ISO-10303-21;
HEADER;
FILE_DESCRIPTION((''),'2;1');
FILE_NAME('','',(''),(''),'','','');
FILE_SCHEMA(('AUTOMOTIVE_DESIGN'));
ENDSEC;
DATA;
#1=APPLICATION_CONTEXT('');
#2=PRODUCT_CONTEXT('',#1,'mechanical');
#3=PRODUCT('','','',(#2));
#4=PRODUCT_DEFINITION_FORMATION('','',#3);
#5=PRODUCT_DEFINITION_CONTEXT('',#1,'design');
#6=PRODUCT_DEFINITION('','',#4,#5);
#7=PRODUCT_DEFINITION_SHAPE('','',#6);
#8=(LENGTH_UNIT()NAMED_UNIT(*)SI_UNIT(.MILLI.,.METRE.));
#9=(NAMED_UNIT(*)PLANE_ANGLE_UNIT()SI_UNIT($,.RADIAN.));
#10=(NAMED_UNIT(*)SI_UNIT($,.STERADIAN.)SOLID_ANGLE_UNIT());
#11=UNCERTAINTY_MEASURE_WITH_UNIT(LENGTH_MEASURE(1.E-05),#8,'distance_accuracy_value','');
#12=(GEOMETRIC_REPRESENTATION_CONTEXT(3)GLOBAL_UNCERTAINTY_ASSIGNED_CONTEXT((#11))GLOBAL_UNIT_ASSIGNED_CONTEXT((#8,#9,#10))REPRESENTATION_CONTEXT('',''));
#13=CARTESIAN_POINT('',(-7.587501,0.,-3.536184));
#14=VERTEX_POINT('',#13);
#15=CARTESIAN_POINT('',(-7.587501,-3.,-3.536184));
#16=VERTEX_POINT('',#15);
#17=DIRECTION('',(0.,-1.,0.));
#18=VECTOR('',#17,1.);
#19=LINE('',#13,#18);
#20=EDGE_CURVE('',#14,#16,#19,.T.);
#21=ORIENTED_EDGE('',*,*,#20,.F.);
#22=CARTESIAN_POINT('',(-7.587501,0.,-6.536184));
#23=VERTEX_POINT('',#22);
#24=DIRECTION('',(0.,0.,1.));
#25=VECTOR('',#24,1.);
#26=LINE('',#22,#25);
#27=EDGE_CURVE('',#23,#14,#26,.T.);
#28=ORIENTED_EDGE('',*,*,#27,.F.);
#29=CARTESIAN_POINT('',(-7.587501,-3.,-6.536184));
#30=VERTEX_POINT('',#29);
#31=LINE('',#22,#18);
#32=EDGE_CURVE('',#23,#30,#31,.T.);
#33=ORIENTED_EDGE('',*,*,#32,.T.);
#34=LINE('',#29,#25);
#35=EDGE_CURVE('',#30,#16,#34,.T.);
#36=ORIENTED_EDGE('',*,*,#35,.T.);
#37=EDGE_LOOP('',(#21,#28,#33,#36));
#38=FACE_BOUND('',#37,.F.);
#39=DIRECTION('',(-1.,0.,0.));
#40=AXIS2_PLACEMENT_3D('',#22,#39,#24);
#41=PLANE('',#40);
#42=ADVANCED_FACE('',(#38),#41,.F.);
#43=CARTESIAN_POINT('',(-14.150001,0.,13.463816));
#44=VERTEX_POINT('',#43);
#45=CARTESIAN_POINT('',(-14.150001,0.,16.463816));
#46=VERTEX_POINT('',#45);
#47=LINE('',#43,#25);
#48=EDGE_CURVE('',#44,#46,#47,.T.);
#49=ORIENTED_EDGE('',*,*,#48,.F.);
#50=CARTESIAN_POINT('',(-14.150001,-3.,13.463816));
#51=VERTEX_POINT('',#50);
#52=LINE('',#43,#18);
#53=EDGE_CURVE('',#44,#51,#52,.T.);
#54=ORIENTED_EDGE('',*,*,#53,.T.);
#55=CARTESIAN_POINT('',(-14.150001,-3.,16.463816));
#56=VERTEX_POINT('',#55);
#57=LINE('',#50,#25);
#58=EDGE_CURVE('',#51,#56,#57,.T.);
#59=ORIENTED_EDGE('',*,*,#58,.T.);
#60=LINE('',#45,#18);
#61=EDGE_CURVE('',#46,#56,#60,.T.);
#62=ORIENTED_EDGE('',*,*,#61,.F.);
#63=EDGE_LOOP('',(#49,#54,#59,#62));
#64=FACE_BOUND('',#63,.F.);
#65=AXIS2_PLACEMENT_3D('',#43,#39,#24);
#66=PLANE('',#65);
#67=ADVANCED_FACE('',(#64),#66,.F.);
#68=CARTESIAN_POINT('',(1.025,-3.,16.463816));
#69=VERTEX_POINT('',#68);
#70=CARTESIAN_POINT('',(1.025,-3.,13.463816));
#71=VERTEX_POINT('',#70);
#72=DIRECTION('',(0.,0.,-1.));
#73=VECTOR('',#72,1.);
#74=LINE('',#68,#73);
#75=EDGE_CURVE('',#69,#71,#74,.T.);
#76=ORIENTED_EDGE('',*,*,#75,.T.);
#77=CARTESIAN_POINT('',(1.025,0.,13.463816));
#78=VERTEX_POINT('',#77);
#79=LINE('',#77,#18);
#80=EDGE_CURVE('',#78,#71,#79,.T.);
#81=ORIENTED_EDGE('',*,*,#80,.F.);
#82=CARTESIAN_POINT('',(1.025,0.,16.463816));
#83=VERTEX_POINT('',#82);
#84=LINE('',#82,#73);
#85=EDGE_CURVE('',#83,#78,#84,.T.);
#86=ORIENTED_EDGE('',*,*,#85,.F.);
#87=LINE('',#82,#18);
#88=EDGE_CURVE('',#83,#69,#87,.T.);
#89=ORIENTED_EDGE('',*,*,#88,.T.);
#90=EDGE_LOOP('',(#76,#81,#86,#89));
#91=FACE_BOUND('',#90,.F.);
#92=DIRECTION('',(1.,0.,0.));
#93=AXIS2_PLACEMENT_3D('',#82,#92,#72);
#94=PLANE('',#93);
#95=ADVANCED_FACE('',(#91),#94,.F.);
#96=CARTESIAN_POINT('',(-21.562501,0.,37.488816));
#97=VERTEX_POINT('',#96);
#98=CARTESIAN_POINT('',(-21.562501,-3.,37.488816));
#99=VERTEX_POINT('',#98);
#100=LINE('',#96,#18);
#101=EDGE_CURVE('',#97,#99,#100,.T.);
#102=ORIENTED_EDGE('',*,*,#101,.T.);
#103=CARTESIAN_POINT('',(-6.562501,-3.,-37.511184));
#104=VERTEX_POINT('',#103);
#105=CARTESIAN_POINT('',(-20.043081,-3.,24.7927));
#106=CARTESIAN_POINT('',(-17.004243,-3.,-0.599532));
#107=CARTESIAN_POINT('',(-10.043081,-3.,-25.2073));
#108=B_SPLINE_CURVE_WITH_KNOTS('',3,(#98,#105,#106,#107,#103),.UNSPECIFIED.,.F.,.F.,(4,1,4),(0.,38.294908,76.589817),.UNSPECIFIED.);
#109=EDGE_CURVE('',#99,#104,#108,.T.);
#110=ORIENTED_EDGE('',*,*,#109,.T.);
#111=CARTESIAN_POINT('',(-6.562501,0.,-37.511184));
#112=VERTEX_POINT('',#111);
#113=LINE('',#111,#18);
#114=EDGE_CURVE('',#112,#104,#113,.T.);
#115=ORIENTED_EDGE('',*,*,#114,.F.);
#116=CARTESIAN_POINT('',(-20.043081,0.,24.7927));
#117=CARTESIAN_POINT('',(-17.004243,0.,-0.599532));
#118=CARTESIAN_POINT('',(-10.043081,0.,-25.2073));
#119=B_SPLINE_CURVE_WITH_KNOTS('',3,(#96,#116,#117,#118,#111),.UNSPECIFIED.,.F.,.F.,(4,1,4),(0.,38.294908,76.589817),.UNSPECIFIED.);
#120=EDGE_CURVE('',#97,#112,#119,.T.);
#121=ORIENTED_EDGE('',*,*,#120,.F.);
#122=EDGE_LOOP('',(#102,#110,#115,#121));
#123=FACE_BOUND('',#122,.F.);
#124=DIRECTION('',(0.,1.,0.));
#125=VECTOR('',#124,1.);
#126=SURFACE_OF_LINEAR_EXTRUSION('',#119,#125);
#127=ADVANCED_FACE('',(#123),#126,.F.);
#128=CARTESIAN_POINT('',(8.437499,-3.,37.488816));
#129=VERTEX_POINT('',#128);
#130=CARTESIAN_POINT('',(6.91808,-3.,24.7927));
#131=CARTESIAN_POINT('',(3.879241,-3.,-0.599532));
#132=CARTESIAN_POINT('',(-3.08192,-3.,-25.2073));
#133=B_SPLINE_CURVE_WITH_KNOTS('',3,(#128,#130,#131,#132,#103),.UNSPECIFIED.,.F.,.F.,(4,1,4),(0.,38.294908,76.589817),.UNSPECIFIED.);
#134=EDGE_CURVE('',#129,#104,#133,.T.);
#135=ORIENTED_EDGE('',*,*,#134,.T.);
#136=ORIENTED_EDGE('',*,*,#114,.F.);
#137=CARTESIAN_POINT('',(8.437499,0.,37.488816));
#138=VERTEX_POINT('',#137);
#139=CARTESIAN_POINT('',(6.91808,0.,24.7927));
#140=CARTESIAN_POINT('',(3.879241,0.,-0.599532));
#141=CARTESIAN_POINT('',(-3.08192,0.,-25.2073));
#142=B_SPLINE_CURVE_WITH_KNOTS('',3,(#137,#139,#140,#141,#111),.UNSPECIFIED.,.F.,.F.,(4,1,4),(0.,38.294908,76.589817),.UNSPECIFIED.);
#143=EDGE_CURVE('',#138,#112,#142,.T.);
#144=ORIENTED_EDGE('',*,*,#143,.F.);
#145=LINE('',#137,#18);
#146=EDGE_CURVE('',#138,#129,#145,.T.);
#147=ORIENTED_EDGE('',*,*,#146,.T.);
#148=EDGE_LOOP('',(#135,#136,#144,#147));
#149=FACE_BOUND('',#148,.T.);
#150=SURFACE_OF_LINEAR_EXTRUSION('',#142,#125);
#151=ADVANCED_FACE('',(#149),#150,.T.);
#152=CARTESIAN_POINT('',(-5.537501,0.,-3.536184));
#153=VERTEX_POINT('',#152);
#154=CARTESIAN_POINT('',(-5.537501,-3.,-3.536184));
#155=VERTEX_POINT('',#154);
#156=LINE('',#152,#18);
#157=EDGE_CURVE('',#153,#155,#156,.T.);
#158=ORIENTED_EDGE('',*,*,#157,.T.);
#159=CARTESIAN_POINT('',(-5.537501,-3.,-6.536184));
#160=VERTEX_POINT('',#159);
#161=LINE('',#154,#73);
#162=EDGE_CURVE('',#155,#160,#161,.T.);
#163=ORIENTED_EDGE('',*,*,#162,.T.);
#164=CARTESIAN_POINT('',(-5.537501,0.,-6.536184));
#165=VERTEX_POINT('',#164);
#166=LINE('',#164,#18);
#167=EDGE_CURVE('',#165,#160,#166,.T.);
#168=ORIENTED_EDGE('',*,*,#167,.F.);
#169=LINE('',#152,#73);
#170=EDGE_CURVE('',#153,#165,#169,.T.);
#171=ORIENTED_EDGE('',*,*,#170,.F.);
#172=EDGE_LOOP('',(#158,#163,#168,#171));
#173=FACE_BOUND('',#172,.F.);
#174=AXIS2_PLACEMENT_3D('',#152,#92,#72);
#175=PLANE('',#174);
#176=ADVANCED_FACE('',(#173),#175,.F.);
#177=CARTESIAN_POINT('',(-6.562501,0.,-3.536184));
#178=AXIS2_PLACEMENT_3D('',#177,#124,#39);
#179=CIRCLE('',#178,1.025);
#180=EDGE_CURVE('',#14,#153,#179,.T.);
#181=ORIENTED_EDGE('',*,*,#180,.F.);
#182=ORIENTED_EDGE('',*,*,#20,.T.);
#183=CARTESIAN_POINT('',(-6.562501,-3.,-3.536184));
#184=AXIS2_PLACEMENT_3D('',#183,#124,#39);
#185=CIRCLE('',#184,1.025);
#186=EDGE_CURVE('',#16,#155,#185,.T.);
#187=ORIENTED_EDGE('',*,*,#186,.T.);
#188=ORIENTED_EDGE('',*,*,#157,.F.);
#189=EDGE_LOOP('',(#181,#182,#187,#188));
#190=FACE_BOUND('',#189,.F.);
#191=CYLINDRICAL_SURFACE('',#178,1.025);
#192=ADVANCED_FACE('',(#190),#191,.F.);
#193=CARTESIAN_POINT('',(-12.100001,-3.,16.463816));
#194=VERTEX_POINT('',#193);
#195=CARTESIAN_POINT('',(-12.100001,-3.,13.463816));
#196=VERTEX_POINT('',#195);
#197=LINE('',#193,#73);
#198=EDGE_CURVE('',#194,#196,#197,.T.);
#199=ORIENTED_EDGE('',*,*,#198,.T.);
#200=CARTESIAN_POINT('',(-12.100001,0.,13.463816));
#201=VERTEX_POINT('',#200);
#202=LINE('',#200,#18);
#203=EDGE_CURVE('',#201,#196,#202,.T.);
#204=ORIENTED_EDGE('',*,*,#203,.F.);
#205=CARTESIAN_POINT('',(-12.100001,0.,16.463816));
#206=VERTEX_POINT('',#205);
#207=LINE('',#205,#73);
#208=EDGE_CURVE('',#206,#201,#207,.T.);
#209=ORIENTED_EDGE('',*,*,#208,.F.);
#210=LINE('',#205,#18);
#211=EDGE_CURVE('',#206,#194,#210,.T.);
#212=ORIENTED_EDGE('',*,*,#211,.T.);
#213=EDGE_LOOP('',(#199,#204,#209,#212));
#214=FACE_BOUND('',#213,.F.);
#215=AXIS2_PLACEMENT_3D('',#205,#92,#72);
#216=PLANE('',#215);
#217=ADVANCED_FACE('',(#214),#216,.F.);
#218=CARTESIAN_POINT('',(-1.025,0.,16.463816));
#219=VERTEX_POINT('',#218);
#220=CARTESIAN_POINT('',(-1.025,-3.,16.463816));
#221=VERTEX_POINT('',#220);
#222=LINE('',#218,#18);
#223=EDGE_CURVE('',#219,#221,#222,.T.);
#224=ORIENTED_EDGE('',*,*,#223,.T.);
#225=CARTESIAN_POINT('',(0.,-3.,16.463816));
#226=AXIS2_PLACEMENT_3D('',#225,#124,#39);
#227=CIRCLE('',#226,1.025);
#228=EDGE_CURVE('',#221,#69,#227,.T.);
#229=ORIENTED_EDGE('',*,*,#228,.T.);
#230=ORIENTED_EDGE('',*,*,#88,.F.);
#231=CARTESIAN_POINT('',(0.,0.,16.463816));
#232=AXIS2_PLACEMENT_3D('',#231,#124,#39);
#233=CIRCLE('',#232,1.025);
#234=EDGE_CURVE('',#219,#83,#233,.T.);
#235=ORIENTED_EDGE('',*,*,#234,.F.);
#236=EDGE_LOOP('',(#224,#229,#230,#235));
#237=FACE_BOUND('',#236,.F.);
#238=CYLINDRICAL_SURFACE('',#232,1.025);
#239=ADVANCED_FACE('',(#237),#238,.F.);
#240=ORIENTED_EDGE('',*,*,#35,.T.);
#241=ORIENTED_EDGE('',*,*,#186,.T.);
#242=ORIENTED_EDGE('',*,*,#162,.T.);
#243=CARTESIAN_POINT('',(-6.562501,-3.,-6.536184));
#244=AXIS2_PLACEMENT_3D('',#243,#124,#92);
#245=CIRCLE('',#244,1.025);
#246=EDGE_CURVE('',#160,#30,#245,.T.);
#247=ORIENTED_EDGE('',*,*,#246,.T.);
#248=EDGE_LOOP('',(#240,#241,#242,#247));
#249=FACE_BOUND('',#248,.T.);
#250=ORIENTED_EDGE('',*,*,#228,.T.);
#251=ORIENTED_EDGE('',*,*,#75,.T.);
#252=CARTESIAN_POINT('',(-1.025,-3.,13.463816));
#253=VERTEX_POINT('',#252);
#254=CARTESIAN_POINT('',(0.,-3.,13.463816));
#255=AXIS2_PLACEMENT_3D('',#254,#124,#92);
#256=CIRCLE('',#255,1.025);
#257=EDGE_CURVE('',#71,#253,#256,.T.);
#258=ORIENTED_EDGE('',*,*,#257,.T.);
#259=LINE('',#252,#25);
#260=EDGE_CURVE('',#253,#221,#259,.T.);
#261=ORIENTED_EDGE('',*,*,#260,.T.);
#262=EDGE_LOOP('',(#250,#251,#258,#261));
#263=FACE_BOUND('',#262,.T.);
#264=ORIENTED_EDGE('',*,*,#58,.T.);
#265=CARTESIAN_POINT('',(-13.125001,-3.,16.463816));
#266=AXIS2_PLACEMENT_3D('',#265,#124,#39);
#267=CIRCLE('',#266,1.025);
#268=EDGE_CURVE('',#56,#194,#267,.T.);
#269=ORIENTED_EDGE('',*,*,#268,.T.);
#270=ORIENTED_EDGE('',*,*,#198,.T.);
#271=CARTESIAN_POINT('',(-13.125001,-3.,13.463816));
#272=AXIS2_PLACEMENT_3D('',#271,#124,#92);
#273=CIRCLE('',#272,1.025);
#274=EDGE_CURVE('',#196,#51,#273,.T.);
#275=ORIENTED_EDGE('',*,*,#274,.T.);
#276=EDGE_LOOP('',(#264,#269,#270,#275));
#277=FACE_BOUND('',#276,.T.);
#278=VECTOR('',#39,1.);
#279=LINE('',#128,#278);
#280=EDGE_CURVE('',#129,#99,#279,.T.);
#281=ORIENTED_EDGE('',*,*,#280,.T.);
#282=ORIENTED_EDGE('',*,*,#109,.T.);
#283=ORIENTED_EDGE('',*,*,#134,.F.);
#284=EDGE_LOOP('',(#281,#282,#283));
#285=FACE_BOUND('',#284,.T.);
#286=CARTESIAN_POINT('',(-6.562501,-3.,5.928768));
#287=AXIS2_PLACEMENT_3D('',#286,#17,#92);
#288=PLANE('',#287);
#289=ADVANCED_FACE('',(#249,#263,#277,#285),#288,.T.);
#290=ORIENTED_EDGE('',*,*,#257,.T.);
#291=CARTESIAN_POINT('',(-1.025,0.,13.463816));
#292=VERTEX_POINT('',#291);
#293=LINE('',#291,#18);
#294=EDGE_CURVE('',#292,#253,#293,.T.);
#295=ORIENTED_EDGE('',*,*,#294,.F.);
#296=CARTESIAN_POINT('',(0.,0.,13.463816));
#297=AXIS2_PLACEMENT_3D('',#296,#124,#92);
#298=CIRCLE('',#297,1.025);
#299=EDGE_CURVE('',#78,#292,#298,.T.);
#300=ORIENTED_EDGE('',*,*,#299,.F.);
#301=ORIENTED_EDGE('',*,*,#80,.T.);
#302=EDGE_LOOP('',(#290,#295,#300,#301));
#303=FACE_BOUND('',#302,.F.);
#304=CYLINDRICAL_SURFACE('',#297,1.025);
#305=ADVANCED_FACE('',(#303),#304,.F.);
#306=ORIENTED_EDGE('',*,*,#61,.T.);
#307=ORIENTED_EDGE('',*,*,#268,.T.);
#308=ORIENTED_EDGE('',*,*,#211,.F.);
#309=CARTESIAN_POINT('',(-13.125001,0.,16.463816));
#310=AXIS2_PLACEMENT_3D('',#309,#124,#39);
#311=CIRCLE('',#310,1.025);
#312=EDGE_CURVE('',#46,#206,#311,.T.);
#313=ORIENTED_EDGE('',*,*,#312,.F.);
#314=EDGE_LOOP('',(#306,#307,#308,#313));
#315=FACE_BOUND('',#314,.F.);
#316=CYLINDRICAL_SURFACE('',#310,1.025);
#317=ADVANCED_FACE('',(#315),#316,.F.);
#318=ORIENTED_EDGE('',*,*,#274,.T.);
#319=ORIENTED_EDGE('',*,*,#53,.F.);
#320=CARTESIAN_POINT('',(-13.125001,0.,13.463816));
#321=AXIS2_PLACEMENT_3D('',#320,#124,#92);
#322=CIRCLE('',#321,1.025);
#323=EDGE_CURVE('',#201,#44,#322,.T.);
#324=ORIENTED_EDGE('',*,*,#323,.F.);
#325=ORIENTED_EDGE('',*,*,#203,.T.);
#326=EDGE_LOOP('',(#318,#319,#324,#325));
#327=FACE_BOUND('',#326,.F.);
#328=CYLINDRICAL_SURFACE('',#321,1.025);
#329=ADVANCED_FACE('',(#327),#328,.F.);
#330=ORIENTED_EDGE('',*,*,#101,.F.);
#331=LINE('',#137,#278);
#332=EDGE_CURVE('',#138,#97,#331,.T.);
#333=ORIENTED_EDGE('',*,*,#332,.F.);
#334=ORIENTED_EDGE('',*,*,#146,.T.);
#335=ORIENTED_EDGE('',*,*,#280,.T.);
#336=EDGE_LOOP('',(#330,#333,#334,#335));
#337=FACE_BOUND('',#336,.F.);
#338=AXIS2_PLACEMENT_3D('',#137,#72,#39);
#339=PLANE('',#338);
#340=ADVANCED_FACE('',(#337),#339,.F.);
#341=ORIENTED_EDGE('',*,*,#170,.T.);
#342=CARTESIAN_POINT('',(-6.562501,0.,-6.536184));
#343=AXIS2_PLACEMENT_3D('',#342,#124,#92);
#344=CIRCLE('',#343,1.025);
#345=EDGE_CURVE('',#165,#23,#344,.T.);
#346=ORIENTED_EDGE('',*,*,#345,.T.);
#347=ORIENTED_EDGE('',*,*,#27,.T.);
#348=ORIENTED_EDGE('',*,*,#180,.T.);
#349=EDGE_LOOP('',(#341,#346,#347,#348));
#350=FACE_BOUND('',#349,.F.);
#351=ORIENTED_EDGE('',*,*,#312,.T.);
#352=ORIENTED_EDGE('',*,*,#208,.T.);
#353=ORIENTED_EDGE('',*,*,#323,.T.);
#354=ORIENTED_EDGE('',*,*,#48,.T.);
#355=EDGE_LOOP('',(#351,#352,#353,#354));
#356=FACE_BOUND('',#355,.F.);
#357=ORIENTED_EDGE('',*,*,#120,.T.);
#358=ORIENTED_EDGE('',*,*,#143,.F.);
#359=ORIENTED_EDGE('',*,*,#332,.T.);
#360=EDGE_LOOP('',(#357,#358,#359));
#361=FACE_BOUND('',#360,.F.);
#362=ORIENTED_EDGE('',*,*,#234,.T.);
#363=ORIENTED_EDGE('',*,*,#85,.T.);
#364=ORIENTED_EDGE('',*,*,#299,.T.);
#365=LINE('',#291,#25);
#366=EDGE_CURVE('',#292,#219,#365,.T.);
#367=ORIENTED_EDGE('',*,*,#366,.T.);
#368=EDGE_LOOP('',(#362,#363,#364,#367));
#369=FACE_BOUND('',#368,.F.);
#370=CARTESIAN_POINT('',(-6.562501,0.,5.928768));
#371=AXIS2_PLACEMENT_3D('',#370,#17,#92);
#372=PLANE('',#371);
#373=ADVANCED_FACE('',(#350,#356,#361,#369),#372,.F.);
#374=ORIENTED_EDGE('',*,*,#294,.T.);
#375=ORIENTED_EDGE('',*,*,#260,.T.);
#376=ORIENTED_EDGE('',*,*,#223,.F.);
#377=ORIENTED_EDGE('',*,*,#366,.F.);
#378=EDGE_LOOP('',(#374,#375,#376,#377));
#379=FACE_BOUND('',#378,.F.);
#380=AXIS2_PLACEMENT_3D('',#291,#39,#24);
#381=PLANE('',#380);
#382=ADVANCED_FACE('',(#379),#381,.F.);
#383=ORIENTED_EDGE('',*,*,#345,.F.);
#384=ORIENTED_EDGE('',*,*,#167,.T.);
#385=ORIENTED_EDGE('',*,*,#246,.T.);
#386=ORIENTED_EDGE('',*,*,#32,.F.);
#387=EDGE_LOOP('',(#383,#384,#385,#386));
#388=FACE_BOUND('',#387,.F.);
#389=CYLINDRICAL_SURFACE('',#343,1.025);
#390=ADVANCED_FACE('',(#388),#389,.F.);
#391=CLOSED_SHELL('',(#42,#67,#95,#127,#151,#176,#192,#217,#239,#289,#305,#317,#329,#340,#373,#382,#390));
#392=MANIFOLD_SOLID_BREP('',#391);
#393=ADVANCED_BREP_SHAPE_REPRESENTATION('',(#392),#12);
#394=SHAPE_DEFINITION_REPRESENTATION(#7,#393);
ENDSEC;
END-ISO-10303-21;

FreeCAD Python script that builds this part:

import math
import FreeCAD as App
import Part
import Sketcher

V = App.Vector
Q = App.Units.Quantity

doc = App.newDocument("Part")
body = doc.addObject("PartDesign::Body", "Body")

sketch1 = body.newObject("Sketcher::SketchObject", "Sketch")
sketch1.AttachmentSupport = (doc.getObject("XZ_Plane"), [""])
sketch1.MapMode = "FlatFace"
sketch1.addGeometry([
    Part.BSplineCurve([V(-21.562501, 37.488816, 0), V(-20.043081, 24.7927, 0), V(-17.004243, -0.599532, 0), V(-10.043081, -25.2073, 0), V(-6.562501, -37.511184, 0)], [4, 1, 4], [0, 38.294908, 76.589817], False, 3, [1, 1, 1, 1, 1], False),
    Part.BSplineCurve([V(8.437499, 37.488816, 0), V(6.91808, 24.7927, 0), V(3.879241, -0.599532, 0), V(-3.08192, -25.2073, 0), V(-6.562501, -37.511184, 0)], [4, 1, 4], [0, 38.294908, 76.589817], False, 3, [1, 1, 1, 1, 1], False),
    Part.LineSegment(V(8.437499, 37.488816, 0), V(-21.562501, 37.488816, 0)),
], False)
sketch1.addConstraint([
    Sketcher.Constraint("Block", 0),
    Sketcher.Constraint("Block", 1),
    Sketcher.Constraint("Coincident", 1, 1, 2, 1),
    Sketcher.Constraint("Coincident", 2, 2, 0, 1),
])
pad1 = body.newObject("PartDesign::Pad", "Pad")
pad1.Profile = sketch1
pad1.Length = 3

sketch2 = body.newObject("Sketcher::SketchObject", "Sketch001")
sketch2.AttachmentSupport = (doc.getObject("XZ_Plane"), [""])
sketch2.MapMode = "FlatFace"
sketch2.addGeometry([
    Part.LineSegment(V(-1, 13.5, 0), V(-1, 16.5, 0)),
    Part.ArcOfCircle(Part.Circle(V(0, 16.5, 0), V(0, 0, 1), 1), math.radians(0), math.radians(180)),
    Part.LineSegment(V(1, 16.5, 0), V(1, 13.5, 0)),
    Part.ArcOfCircle(Part.Circle(V(0, 13.5, 0), V(0, 0, 1), 1), math.radians(180), math.radians(360)),
    Part.ArcOfCircle(Part.Circle(V(-13.1, 16.5, 0), V(0, 0, 1), 1), math.radians(0), math.radians(180)),
    Part.LineSegment(V(-12.1, 16.5, 0), V(-12.1, 13.5, 0)),
    Part.ArcOfCircle(Part.Circle(V(-13.1, 13.5, 0), V(0, 0, 1), 1), math.radians(180), math.radians(360)),
    Part.LineSegment(V(-14.2, 13.5, 0), V(-14.2, 16.5, 0)),
    Part.ArcOfCircle(Part.Circle(V(-6.6, -3.5, 0), V(0, 0, 1), 1), math.radians(0), math.radians(180)),
    Part.LineSegment(V(-5.5, -3.5, 0), V(-5.5, -6.5, 0)),
    Part.ArcOfCircle(Part.Circle(V(-6.6, -6.5, 0), V(0, 0, 1), 1), math.radians(180), math.radians(360)),
    Part.LineSegment(V(-7.6, -6.5, 0), V(-7.6, -3.5, 0)),
], False)
sketch2.addConstraint([
    Sketcher.Constraint("Tangent", 0, 2, 1, 2),
    Sketcher.Constraint("Tangent", 1, 1, 2, 1),
    Sketcher.Constraint("Tangent", 2, 2, 3, 2),
    Sketcher.Constraint("Tangent", 3, 1, 0, 1),
    Sketcher.Constraint("Tangent", 4, 1, 5, 1),
    Sketcher.Constraint("Tangent", 5, 2, 6, 2),
    Sketcher.Constraint("Tangent", 6, 1, 7, 1),
    Sketcher.Constraint("Tangent", 7, 2, 4, 2),
    Sketcher.Constraint("Tangent", 8, 1, 9, 1),
    Sketcher.Constraint("Tangent", 9, 2, 10, 2),
    Sketcher.Constraint("Tangent", 10, 1, 11, 1),
    Sketcher.Constraint("Tangent", 11, 2, 8, 2),
    Sketcher.Constraint("Vertical", 0),
    Sketcher.Constraint("Vertical", 2),
    Sketcher.Constraint("Vertical", 5),
    Sketcher.Constraint("Vertical", 7),
    Sketcher.Constraint("Vertical", 9),
    Sketcher.Constraint("Vertical", 11),
    Sketcher.Constraint("Equal", 3, 4),
    Sketcher.Constraint("Equal", 6, 8),
    Sketcher.Constraint("PointOnObject", 1, 3, -2),
    Sketcher.Constraint("Horizontal", 1, 3, 4, 3),
    Sketcher.Constraint("Horizontal", 3, 3, 6, 3),
    Sketcher.Constraint("Equal", 7, 9),
    Sketcher.Constraint("DistanceY", 0, 1, 0, 2, Q("3 mm")),
    Sketcher.Constraint("Radius", 1, Q("1.025 mm")),
    Sketcher.Constraint("DistanceY", 8, 3, 6, 3, Q("17 mm")),
    Sketcher.Constraint("DistanceX", 4, 1, -1, 1, Q("12.100001 mm")),
    Sketcher.Constraint("DistanceX", 8, 3, -1, 1, Q("6.562501 mm")),
    Sketcher.Constraint("DistanceY", -1, 1, 1, 3, Q("16.463816 mm")),
])
pocket1 = body.newObject("PartDesign::Pocket", "Pocket")
pocket1.Profile = sketch2
pocket1.Type = "ThroughAll"
pocket1.Reversed = True

doc.recompute()
